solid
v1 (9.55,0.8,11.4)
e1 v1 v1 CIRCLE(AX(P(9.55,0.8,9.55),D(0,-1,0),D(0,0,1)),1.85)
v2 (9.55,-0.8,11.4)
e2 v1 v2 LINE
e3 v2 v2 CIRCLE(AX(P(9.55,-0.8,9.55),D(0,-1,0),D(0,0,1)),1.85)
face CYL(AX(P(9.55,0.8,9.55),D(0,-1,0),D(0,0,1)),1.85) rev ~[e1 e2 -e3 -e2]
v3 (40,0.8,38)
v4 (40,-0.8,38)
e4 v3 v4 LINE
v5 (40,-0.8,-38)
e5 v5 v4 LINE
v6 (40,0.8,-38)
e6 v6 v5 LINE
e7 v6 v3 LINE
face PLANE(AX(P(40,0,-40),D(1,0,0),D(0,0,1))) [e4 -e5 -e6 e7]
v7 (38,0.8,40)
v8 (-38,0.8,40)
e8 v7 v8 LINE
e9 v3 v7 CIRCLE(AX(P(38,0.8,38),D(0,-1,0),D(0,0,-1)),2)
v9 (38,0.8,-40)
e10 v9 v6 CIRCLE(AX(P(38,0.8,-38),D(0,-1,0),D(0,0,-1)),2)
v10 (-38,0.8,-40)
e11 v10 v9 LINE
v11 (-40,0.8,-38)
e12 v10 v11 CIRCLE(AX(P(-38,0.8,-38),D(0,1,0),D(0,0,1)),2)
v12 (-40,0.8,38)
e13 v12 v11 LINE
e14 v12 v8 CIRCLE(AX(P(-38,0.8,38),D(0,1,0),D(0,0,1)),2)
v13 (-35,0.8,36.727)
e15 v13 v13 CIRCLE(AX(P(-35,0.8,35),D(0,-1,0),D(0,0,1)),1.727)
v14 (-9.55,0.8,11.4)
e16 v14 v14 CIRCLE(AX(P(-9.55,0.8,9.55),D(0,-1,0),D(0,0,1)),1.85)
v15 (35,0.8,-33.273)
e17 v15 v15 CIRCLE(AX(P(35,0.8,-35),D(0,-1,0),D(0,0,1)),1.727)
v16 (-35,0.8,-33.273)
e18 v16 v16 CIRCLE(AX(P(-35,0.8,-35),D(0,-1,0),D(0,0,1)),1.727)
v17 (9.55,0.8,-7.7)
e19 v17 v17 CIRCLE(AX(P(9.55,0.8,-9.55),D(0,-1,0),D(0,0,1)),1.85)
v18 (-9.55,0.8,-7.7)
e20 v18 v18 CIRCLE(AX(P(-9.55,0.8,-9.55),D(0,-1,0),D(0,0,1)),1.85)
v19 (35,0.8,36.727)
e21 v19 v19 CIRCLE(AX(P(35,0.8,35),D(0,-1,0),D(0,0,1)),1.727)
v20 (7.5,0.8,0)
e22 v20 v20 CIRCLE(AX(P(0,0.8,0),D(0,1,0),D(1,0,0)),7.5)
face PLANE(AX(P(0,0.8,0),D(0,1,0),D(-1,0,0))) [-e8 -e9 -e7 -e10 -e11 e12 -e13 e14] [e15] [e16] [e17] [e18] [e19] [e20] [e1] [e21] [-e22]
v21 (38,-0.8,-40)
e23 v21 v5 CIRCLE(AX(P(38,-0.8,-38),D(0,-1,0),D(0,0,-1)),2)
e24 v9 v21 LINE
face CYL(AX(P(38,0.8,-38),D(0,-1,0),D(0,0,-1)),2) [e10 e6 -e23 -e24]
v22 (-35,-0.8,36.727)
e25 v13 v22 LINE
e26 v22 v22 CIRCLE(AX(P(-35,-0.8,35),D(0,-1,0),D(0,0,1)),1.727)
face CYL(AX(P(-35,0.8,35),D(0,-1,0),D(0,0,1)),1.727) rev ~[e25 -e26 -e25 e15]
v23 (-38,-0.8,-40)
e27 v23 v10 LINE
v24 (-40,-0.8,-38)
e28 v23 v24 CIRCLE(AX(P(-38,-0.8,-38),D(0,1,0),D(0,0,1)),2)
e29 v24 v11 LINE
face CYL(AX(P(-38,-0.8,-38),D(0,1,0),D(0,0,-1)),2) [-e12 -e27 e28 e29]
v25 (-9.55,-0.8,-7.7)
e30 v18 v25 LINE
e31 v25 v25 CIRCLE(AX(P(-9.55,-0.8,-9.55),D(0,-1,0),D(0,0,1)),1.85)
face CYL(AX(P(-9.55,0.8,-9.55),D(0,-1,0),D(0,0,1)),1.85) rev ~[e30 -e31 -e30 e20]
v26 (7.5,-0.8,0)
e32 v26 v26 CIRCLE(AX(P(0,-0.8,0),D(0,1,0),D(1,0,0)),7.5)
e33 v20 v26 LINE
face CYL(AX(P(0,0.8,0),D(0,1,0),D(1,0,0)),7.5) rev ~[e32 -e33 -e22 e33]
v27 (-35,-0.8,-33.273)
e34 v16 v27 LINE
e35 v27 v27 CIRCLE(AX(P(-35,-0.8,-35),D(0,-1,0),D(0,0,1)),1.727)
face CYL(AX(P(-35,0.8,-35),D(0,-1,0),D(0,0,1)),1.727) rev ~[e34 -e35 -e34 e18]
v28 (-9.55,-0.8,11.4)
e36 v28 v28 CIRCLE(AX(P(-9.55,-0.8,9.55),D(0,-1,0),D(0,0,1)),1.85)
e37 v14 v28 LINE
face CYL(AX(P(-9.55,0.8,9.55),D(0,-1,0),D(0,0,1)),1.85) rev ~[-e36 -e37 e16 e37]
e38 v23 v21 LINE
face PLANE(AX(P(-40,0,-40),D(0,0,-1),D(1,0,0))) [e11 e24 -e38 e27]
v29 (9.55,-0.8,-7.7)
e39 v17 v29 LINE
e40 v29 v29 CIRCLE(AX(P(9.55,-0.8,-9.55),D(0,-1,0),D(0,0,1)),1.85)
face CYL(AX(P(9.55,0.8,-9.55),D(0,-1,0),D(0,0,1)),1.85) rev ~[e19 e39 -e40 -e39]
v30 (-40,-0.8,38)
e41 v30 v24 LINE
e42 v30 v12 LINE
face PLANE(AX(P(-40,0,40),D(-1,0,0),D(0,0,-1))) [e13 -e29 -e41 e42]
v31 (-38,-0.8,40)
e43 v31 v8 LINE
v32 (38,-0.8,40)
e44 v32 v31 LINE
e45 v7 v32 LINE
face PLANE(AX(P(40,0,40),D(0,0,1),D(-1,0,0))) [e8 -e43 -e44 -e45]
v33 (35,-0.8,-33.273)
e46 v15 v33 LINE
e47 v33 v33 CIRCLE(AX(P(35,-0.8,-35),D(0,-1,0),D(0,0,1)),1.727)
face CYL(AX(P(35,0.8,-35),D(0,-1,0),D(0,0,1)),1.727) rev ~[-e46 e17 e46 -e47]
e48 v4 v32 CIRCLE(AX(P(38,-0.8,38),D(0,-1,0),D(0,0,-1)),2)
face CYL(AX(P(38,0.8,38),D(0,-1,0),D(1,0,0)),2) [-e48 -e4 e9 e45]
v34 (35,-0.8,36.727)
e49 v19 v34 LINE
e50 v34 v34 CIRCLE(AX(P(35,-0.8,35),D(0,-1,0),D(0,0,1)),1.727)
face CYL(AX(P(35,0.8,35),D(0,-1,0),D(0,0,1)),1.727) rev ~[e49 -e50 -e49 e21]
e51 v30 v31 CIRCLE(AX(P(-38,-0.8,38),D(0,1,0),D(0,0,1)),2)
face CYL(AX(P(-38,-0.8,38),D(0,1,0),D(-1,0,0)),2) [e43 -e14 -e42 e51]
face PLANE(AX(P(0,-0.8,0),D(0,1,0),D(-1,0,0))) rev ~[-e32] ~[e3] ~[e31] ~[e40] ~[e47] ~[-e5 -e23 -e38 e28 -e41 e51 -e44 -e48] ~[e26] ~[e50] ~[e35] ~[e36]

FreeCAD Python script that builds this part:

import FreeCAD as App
import Part
import Sketcher

V = App.Vector


def edges_at(feature, points):
    """Names of the edges that pass closest to the given points."""
    edges = feature.Shape.Edges
    near = lambda p: min(range(len(edges)), key=lambda i: edges[i].distToShape(Part.Vertex(*p))[0])
    return sorted({f"Edge{near(p) + 1}" for p in points})

doc = App.newDocument("Part")
body = doc.addObject("PartDesign::Body", "Body")

# Sketch on XZ plane
sketch1 = body.newObject("Sketcher::SketchObject", "Sketch")
sketch1.AttachmentSupport = (doc.getObject("XZ_Plane"), [""])
sketch1.MapMode = "FlatFace"
sketch1.addGeometry([
    Part.LineSegment(V(40, -40, 0), V(-40, -40, 0)),
    Part.LineSegment(V(-40, -40, 0), V(-40, 40, 0)),
    Part.LineSegment(V(-40, 40, 0), V(40, 40, 0)),
    Part.LineSegment(V(40, 40, 0), V(40, -40, 0)),
], False)
sketch1.addConstraint([
    Sketcher.Constraint("Coincident", 0, 2, 1, 1),
    Sketcher.Constraint("Coincident", 1, 2, 2, 1),
    Sketcher.Constraint("Coincident", 2, 2, 3, 1),
    Sketcher.Constraint("Coincident", 3, 2, 0, 1),
    Sketcher.Constraint("Horizontal", 0),
    Sketcher.Constraint("Vertical", 1),
    Sketcher.Constraint("Horizontal", 2),
    Sketcher.Constraint("Vertical", 3),
    Sketcher.Constraint("Symmetric", 0, 2, 2, 2, -1, 1),
    Sketcher.Constraint("Equal", 2, 1),
    Sketcher.Constraint("DistanceX", 0, 2, 0, 1, 80.0),
])
pad1 = body.newObject("PartDesign::Pad", "Pad")
pad1.Profile = sketch1
pad1.Length = 1.6
pad1.Midplane = True
doc.recompute()

fillet = body.newObject("PartDesign::Fillet", "Fillet")
fillet.Base = (pad1, edges_at(pad1, [
    (-40, 0, 40),
    (40, 0, 40),
    (40, 0, -40),
    (-40, 0, -40),
]))
fillet.Radius = 2

# Sketch on XZ plane
sketch2 = body.newObject("Sketcher::SketchObject", "Sketch001")
sketch2.AttachmentSupport = (doc.getObject("XZ_Plane"), [""])
sketch2.MapMode = "FlatFace"
sketch2.AttachmentOffset = App.Placement(V(0, 0, -0.8), App.Rotation())
sketch2.addGeometry([
    Part.Circle(V(-35, 35, 0), V(0, 0, 1), 1.727),
    Part.Circle(V(-35, -35, 0), V(0, 0, 1), 1.727),
    Part.Circle(V(35, 35, 0), V(0, 0, 1), 1.727),
    Part.Circle(V(35, -35, 0), V(0, 0, 1), 1.727),
], False)
sketch2.addConstraint([
    Sketcher.Constraint("Equal", 0, 1),
    Sketcher.Constraint("Equal", 1, 2),
    Sketcher.Constraint("Equal", 2, 3),
    Sketcher.Constraint("Symmetric", 1, 3, 2, 3, -1, 1),
    Sketcher.Constraint("Symmetric", 0, 3, 3, 3, -1, 1),
    Sketcher.Constraint("Symmetric", 0, 3, 2, 3, -2),
    Sketcher.Constraint("Diameter", 0, 3.454),
    Sketcher.Constraint("DistanceX", 0, 3, -1, 1, 35.0),
    Sketcher.Constraint("DistanceY", -1, 1, 0, 3, 35.0),
])
doc.recompute()
hole = body.newObject("PartDesign::Hole", "Hole")
hole.Profile = sketch2
hole.ThreadType = "None"
hole.Diameter = 3.454
hole.DepthType = "ThroughAll"
hole.Reversed = True

# Sketch on XZ plane
sketch3 = body.newObject("Sketcher::SketchObject", "Sketch002")
sketch3.AttachmentSupport = (doc.getObject("XZ_Plane"), [""])
sketch3.MapMode = "FlatFace"
sketch3.AttachmentOffset = App.Placement(V(0, 0, -0.8), App.Rotation())
sketch3.addGeometry([
    Part.Circle(V(-9.55, -9.55, 0), V(0, 0, 1), 1.85),
    Part.Circle(V(9.55, -9.55, 0), V(0, 0, 1), 1.85),
    Part.Circle(V(-9.55, 9.55, 0), V(0, 0, 1), 1.85),
    Part.Circle(V(9.55, 9.55, 0), V(0, 0, 1), 1.85),
], False)
sketch3.addConstraint([
    Sketcher.Constraint("Equal", 0, 1),
    Sketcher.Constraint("Equal", 1, 2),
    Sketcher.Constraint("Equal", 2, 3),
    Sketcher.Constraint("Symmetric", 1, 3, 2, 3, -1, 1),
    Sketcher.Constraint("Symmetric", 0, 3, 3, 3, -1, 1),
    Sketcher.Constraint("Symmetric", 0, 3, 1, 3, -2),
    Sketcher.Constraint("Diameter", 0, 3.7),
    Sketcher.Constraint("DistanceX", 0, 3, 1, 3, 19.1),
    Sketcher.Constraint("DistanceY", 0, 3, 2, 3, 19.1),
])
doc.recompute()
hole2 = body.newObject("PartDesign::Hole", "Hole001")
hole2.Profile = sketch3
hole2.ThreadType = "None"
hole2.Diameter = 3.7
hole2.DepthType = "ThroughAll"
hole2.Reversed = True

# Sketch on XZ plane
sketch4 = body.newObject("Sketcher::SketchObject", "Sketch003")
sketch4.AttachmentSupport = (doc.getObject("XZ_Plane"), [""])
sketch4.MapMode = "FlatFace"
sketch4.AttachmentOffset = App.Placement(V(0, 0, -0.8), App.Rotation())
sketch4.addGeometry(Part.Circle(V(0, 0, 0), V(0, 0, 1), 7.5), False)
sketch4.addConstraint([
    Sketcher.Constraint("Coincident", 0, 3, -1, 1),
    Sketcher.Constraint("Diameter", 0, 15.0),
])
pocket1 = body.newObject("PartDesign::Pocket", "Pocket")
pocket1.Profile = sketch4
pocket1.Type = "ThroughAll"
pocket1.Reversed = True

doc.recompute()
